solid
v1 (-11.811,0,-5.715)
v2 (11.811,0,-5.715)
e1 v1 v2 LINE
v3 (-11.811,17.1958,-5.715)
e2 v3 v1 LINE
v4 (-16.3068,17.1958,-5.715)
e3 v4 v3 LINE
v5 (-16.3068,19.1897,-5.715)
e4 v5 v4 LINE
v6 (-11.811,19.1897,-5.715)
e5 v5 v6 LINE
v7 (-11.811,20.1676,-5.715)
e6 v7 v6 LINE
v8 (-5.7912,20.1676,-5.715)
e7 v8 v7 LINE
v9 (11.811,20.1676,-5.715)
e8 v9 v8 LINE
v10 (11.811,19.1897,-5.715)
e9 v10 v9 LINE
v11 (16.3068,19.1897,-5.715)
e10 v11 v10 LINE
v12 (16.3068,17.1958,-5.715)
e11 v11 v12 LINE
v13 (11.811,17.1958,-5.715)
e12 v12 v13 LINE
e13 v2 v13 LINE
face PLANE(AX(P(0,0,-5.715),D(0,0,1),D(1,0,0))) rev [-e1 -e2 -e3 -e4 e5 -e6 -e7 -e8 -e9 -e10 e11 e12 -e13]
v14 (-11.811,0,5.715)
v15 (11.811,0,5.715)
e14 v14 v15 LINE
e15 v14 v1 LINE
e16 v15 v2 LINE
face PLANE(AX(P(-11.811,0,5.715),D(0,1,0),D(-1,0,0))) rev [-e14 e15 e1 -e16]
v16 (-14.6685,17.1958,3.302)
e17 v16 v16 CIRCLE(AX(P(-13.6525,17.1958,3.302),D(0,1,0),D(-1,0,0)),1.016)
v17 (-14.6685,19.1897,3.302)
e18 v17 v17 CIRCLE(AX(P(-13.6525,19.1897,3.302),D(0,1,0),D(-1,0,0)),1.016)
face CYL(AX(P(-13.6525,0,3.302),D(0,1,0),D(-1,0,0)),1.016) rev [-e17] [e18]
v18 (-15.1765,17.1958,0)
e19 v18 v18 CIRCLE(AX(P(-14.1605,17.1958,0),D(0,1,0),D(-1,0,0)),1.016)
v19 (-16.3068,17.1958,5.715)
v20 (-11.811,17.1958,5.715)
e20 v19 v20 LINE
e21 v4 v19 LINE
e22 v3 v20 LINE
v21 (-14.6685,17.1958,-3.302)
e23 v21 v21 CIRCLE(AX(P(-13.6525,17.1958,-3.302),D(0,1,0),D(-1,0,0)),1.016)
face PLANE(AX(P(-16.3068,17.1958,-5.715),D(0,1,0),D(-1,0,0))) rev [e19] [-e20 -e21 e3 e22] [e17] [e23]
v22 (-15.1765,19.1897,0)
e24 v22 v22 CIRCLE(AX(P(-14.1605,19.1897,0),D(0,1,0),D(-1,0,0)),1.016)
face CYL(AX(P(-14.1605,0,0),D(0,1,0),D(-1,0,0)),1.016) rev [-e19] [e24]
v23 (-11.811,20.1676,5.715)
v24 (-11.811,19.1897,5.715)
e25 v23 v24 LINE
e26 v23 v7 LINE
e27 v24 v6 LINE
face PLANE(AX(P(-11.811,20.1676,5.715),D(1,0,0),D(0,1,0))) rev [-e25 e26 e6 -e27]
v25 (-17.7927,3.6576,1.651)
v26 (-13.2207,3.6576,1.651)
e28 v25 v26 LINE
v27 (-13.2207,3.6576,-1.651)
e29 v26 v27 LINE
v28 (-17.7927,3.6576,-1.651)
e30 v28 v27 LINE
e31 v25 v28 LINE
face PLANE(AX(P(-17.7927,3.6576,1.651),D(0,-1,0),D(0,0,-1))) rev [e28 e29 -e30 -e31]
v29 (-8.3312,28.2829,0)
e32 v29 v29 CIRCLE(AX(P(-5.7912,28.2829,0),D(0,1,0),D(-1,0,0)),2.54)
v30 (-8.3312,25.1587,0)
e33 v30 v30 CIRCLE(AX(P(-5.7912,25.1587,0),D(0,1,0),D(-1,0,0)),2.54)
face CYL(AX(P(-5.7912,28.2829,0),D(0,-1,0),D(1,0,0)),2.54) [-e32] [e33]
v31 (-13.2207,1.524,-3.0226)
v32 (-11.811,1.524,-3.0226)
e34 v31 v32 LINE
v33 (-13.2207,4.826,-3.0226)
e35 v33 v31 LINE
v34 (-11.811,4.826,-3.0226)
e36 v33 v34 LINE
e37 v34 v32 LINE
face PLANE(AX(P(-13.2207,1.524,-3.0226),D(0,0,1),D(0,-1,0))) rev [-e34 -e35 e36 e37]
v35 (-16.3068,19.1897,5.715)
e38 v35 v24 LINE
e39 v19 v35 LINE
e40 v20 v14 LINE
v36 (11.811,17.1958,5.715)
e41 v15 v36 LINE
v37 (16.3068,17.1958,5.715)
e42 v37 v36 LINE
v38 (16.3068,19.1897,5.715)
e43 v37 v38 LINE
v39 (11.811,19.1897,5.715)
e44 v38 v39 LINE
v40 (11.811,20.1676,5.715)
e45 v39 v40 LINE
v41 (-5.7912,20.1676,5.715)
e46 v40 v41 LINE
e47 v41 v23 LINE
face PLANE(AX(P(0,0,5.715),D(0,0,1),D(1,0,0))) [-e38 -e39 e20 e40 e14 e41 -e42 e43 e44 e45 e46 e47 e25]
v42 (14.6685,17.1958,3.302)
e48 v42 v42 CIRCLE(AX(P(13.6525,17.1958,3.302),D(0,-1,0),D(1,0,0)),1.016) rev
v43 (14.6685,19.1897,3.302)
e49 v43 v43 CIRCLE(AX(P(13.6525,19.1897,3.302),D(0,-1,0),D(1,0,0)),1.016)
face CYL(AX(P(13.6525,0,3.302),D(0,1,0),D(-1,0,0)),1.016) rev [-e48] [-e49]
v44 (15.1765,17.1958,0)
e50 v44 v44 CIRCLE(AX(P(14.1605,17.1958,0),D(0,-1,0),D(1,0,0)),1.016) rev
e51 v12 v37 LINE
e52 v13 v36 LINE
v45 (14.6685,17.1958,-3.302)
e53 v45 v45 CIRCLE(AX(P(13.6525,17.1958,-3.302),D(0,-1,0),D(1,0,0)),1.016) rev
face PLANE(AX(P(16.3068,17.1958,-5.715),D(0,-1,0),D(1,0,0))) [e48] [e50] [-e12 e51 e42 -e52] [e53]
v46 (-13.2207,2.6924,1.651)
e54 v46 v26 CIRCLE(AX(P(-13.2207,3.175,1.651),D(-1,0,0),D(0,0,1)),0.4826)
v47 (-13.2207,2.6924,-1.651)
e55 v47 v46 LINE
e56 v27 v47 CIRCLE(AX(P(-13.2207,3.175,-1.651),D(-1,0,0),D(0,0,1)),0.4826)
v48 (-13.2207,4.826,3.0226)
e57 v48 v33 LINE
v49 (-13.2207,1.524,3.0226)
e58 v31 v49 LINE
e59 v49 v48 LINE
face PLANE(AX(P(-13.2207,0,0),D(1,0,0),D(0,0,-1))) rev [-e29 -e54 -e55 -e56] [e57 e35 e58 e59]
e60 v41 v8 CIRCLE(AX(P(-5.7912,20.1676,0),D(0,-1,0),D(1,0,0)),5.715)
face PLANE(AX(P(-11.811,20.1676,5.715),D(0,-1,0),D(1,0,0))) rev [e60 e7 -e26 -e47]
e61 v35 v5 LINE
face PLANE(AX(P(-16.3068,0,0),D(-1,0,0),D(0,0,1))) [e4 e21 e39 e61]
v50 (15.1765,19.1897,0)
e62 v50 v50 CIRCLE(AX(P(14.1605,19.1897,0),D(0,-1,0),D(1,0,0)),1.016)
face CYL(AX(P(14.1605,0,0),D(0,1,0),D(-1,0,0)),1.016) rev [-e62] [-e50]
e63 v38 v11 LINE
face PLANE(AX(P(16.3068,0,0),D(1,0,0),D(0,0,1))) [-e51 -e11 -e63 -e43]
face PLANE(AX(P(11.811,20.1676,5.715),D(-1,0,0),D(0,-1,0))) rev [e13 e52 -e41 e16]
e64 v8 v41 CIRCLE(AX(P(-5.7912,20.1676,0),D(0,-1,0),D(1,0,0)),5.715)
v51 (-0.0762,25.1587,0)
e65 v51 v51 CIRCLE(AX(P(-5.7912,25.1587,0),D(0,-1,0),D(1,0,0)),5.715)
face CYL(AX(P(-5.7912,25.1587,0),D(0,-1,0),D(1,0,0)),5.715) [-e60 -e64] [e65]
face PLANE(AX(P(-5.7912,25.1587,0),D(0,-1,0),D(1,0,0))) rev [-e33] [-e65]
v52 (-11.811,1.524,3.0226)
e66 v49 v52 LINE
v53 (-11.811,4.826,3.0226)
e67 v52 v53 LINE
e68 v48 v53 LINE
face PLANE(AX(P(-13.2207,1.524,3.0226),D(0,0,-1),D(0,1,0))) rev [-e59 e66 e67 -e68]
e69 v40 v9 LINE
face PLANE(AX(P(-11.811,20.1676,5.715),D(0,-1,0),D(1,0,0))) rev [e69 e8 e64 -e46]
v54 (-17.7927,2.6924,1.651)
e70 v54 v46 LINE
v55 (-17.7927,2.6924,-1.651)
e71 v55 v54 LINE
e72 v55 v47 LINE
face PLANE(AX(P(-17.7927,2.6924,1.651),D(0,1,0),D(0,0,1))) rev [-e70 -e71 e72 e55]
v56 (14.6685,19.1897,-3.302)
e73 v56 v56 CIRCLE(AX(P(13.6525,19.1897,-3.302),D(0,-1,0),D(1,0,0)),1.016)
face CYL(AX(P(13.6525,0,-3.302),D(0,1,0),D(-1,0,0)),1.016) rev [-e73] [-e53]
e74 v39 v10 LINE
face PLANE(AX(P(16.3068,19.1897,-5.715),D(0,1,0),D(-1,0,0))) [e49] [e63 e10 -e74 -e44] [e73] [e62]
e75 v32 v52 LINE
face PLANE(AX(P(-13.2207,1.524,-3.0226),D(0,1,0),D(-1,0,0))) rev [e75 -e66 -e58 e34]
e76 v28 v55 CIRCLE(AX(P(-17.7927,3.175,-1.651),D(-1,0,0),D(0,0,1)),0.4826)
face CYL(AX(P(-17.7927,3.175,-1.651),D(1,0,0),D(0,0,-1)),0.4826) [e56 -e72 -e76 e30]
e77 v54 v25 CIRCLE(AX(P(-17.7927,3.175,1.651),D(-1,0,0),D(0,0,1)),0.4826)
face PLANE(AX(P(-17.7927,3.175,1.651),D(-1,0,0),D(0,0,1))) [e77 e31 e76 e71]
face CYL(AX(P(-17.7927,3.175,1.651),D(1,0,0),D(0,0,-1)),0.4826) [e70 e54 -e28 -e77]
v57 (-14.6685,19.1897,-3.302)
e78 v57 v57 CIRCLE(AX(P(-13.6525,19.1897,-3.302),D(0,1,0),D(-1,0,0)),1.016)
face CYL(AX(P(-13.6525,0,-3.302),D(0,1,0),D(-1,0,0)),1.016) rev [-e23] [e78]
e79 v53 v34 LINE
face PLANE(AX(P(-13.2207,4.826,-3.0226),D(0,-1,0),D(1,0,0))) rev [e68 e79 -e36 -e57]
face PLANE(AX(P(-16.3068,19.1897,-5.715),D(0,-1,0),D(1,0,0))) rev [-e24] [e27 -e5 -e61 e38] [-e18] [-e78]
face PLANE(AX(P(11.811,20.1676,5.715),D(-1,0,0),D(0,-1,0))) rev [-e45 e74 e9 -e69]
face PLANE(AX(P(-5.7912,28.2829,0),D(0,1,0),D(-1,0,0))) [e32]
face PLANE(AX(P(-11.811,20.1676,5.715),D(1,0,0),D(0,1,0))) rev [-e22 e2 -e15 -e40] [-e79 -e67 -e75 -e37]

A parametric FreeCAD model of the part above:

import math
import FreeCAD as App
import Part
import Sketcher
Q = App.Units.Quantity


def add_polygon(sketch, points):
    """Adds a closed chain of lines whose ends are joined by coincident constraints."""
    first, n = sketch.GeometryCount, len(points)
    for a, b in zip(points, points[1:] + points[:1]):
        sketch.addGeometry(Part.LineSegment(App.Vector(*a, 0), App.Vector(*b, 0)), False)
    for i in range(n):
        sketch.addConstraint(Sketcher.Constraint("Coincident", first + i, 2, first + (i + 1) % n, 1))

doc = App.newDocument("Part")
params = doc.addObject("Spreadsheet::Sheet", "Params")
for row, (alias, value) in enumerate([
    ("sketch1_width", "0.93 in"),
    ("sketch1_height", "0.794 in"),
    ("pad1_length", "0.45 in"),
    ("sketch2_height", "0.45 in"),
    ("pad2_length", "0.177 in"),
    ("sketch3_diameter", "0.45 in"),
    ("pad3_length", "0.235 in"),
    ("sketch4_diameter", "0.2 in"),
    ("pad4_length", "0.123 in"),
    ("sketch5_diameter", "0.08 in"),
    ("sketch6_width", "0.13 in"),
    ("sketch6_height", "0.238 in"),
    ("pad5_length", "0.0555 in"),
    ("sketch7_radius", "0.019 in"),
    ("sketch7_height", "0.13 in"),
    ("pad6_length", "0.18 in"),
], start=1):
    params.set(f"A{row}", alias)
    params.set(f"B{row}", "=" + value)
    params.setAlias(f"B{row}", alias)

body = doc.addObject("PartDesign::Body", "Body")

# Sketch on XY plane
sketch1 = doc.addObject("Sketcher::SketchObject", "Sketch")
body.addObject(sketch1)
sketch1.AttachmentSupport = (doc.XY_Plane, [""])
sketch1.MapMode = "FlatFace"
add_polygon(sketch1, [(-12, 20), (-12, 0), (12, 0), (12, 20)])  # lines 0-3
sketch1.addConstraint([
    Sketcher.Constraint("Vertical", 0),
    Sketcher.Constraint("Horizontal", 1),
    Sketcher.Constraint("Vertical", 2),
    Sketcher.Constraint("Horizontal", 3),
    Sketcher.Constraint("Symmetric", 0, 2, 1, 2, -1, 1),
    Sketcher.Constraint("DistanceX", 1, 1, 1, 2, Q("0.93 in")),
    Sketcher.Constraint("DistanceY", 0, 2, 0, 1, Q("0.794 in")),
])
sketch1.setExpression("Constraints[9]", "Params.sketch1_width")
sketch1.setExpression("Constraints[10]", "Params.sketch1_height")
pad1 = doc.addObject("PartDesign::Pad", "Pad")
body.addObject(pad1)
pad1.Profile = sketch1
pad1.setExpression("Length", "Params.pad1_length")
pad1.Midplane = True

# Sketch on YZ plane
sketch2 = doc.addObject("Sketcher::SketchObject", "Sketch001")
body.addObject(sketch2)
sketch2.AttachmentSupport = (doc.YZ_Plane, [""])
sketch2.MapMode = "FlatFace"
sketch2.AttachmentOffset = App.Placement(App.Vector(0, 0, -0.465 * 25.4), App.Rotation())
add_polygon(sketch2, [(19.2, -5.7), (17.2, -5.7), (17.2, 5.7), (19.2, 5.7)])  # lines 0-3
sketch2.addConstraint([
    Sketcher.Constraint("Horizontal", 0),
    Sketcher.Constraint("Vertical", 1),
    Sketcher.Constraint("Horizontal", 2),
    Sketcher.Constraint("Vertical", 3),
    Sketcher.Constraint("DistanceY", 1, 1, 1, 2, Q("0.45 in")),
    Sketcher.Constraint("DistanceX", 0, 2, 0, 1, Q("0.0785 in")),
    Sketcher.Constraint("DistanceX", -1, 1, 0, 2, Q("0.677 in")),
    Sketcher.Constraint("DistanceY", 0, 2, -1, 1, Q("0.225 in")),
])
sketch2.setExpression("Constraints[8]", "Params.sketch2_height")
pad2 = doc.addObject("PartDesign::Pad", "Pad001")
body.addObject(pad2)
pad2.Profile = sketch2
pad2.setExpression("Length", "Params.pad2_length")
pad2.Reversed = True
doc.recompute()

mirrored = doc.addObject("PartDesign::Mirrored", "Mirrored")
body.addObject(mirrored)
mirrored.Originals = [pad2]
mirrored.MirrorPlane = (doc.YZ_Plane, [""])
body.Tip = mirrored

# Sketch on XZ plane
sketch3 = doc.addObject("Sketcher::SketchObject", "Sketch002")
body.addObject(sketch3)
sketch3.AttachmentSupport = (doc.XZ_Plane, [""])
sketch3.MapMode = "FlatFace"
sketch3.AttachmentOffset = App.Placement(App.Vector(0, 0, -0.7555 * 25.4), App.Rotation())
sketch3.addGeometry(Part.Circle(App.Vector(-6, 0, 0), App.Vector(0, 0, 1), 6), False)
sketch3.addConstraint([
    Sketcher.Constraint("PointOnObject", 0, 3, -1),
    Sketcher.Constraint("Diameter", 0, Q("0.45 in")),
    Sketcher.Constraint("DistanceX", 0, 3, -1, 1, Q("0.228 in")),
])
sketch3.setExpression("Constraints[1]", "Params.sketch3_diameter")
pad3 = doc.addObject("PartDesign::Pad", "Pad002")
body.addObject(pad3)
pad3.Profile = sketch3
pad3.setExpression("Length", "Params.pad3_length")
pad3.Reversed = True

# Sketch on XZ plane
sketch4 = doc.addObject("Sketcher::SketchObject", "Sketch003")
body.addObject(sketch4)
sketch4.AttachmentSupport = (doc.XZ_Plane, [""])
sketch4.MapMode = "FlatFace"
sketch4.AttachmentOffset = App.Placement(App.Vector(0, 0, -0.9905 * 25.4), App.Rotation())
sketch4.addGeometry(Part.Circle(App.Vector(-5.8, 0, 0), App.Vector(0, 0, 1), 2.5), False)
sketch4.addConstraint([
    Sketcher.Constraint("PointOnObject", 0, 3, -1),
    Sketcher.Constraint("Diameter", 0, Q("0.2 in")),
    Sketcher.Constraint("DistanceX", 0, 3, -1, 1, Q("0.228 in")),
])
sketch4.setExpression("Constraints[1]", "Params.sketch4_diameter")
pad4 = doc.addObject("PartDesign::Pad", "Pad003")
body.addObject(pad4)
pad4.Profile = sketch4
pad4.setExpression("Length", "Params.pad4_length")
pad4.Reversed = True

# Sketch on XZ plane
sketch5 = doc.addObject("Sketcher::SketchObject", "Sketch004")
body.addObject(sketch5)
sketch5.AttachmentSupport = (doc.XZ_Plane, [""])
sketch5.MapMode = "FlatFace"
sketch5.AttachmentOffset = App.Placement(App.Vector(0, 0, -0.7555 * 25.4), App.Rotation())
sketch5.addGeometry([
    Part.Circle(App.Vector(-13.7, -3.3, 0), App.Vector(0, 0, 1), 1),
    Part.Circle(App.Vector(-13.7, 3.3, 0), App.Vector(0, 0, 1), 1),
    Part.Circle(App.Vector(-14.2, 0, 0), App.Vector(0, 0, 1), 1),
], False)
sketch5.addConstraint([
    Sketcher.Constraint("Equal", 0, 1),
    Sketcher.Constraint("Equal", 1, 2),
    Sketcher.Constraint("Symmetric", 0, 3, 1, 3, -1),
    Sketcher.Constraint("PointOnObject", 2, 3, -1),
    Sketcher.Constraint("Diameter", 0, Q("0.08 in")),
    Sketcher.Constraint("DistanceY", 0, 3, -1, 1, Q("0.13 in")),
    Sketcher.Constraint("DistanceX", 2, 3, 0, 3, Q("0.02 in")),
    Sketcher.Constraint("DistanceX", 0, 3, -1, 1, Q("0.5375 in")),
])
sketch5.setExpression("Constraints[4]", "Params.sketch5_diameter")
pocket1 = doc.addObject("PartDesign::Pocket", "Pocket")
body.addObject(pocket1)
pocket1.Profile = sketch5
pocket1.Type = "ThroughAll"
pocket1.Reversed = True
doc.recompute()

mirrored2 = doc.addObject("PartDesign::Mirrored", "Mirrored001")
body.addObject(mirrored2)
mirrored2.Originals = [pocket1]
mirrored2.MirrorPlane = (doc.YZ_Plane, [""])
body.Tip = mirrored2

# Sketch on YZ plane
sketch6 = doc.addObject("Sketcher::SketchObject", "Sketch005")
body.addObject(sketch6)
sketch6.AttachmentSupport = (doc.YZ_Plane, [""])
sketch6.MapMode = "FlatFace"
sketch6.AttachmentOffset = App.Placement(App.Vector(0, 0, -0.465 * 25.4), App.Rotation())
add_polygon(sketch6, [(4.8, -3), (1.5, -3), (1.5, 3), (4.8, 3)])  # lines 0-3
sketch6.addConstraint([
    Sketcher.Constraint("Horizontal", 0),
    Sketcher.Constraint("Vertical", 1),
    Sketcher.Constraint("Horizontal", 2),
    Sketcher.Constraint("Vertical", 3),
    Sketcher.Constraint("DistanceX", 0, 2, 0, 1, Q("0.13 in")),
    Sketcher.Constraint("DistanceY", 1, 1, 1, 2, Q("0.238 in")),
    Sketcher.Constraint("DistanceX", -1, 1, 0, 2, Q("0.06 in")),
    Sketcher.Constraint("DistanceY", 0, 2, -1, 1, Q("0.119 in")),
])
sketch6.setExpression("Constraints[8]", "Params.sketch6_width")
sketch6.setExpression("Constraints[9]", "Params.sketch6_height")
pad5 = doc.addObject("PartDesign::Pad", "Pad004")
body.addObject(pad5)
pad5.Profile = sketch6
pad5.setExpression("Length", "Params.pad5_length")
pad5.Reversed = True

# Sketch on YZ plane
sketch7 = doc.addObject("Sketcher::SketchObject", "Sketch006")
body.addObject(sketch7)
sketch7.AttachmentSupport = (doc.YZ_Plane, [""])
sketch7.MapMode = "FlatFace"
sketch7.AttachmentOffset = App.Placement(App.Vector(0, 0, -0.5205 * 25.4), App.Rotation())
sketch7.addGeometry([
    Part.LineSegment(App.Vector(2.69, -1.65, 0), App.Vector(2.69, 1.65, 0)),
    Part.ArcOfCircle(Part.Circle(App.Vector(3.17, 1.65, 0), App.Vector(0, 0, 1), 0.48), math.radians(0), math.radians(180)),
    Part.LineSegment(App.Vector(3.66, 1.65, 0), App.Vector(3.66, -1.65, 0)),
    Part.ArcOfCircle(Part.Circle(App.Vector(3.17, -1.65, 0), App.Vector(0, 0, 1), 0.48), math.radians(180), math.radians(360)),
], False)
sketch7.addConstraint([
    Sketcher.Constraint("Tangent", 0, 2, 1, 2),
    Sketcher.Constraint("Tangent", 1, 1, 2, 1),
    Sketcher.Constraint("Tangent", 2, 2, 3, 2),
    Sketcher.Constraint("Tangent", 3, 1, 0, 1),
    Sketcher.Constraint("Vertical", 0),
    Sketcher.Constraint("Vertical", 2),
    Sketcher.Constraint("Radius", 1, Q("0.019 in")),
    Sketcher.Constraint("DistanceY", 0, 1, 0, 2, Q("0.13 in")),
    Sketcher.Constraint("DistanceX", -1, 1, 1, 3, Q("0.125 in")),
    Sketcher.Constraint("DistanceY", -1, 1, 1, 3, Q("0.065 in")),
])
sketch7.setExpression("Constraints[6]", "Params.sketch7_radius")
sketch7.setExpression("Constraints[7]", "Params.sketch7_height")
pad6 = doc.addObject("PartDesign::Pad", "Pad005")
body.addObject(pad6)
pad6.Profile = sketch7
pad6.setExpression("Length", "Params.pad6_length")
pad6.Reversed = True

doc.recompute()
